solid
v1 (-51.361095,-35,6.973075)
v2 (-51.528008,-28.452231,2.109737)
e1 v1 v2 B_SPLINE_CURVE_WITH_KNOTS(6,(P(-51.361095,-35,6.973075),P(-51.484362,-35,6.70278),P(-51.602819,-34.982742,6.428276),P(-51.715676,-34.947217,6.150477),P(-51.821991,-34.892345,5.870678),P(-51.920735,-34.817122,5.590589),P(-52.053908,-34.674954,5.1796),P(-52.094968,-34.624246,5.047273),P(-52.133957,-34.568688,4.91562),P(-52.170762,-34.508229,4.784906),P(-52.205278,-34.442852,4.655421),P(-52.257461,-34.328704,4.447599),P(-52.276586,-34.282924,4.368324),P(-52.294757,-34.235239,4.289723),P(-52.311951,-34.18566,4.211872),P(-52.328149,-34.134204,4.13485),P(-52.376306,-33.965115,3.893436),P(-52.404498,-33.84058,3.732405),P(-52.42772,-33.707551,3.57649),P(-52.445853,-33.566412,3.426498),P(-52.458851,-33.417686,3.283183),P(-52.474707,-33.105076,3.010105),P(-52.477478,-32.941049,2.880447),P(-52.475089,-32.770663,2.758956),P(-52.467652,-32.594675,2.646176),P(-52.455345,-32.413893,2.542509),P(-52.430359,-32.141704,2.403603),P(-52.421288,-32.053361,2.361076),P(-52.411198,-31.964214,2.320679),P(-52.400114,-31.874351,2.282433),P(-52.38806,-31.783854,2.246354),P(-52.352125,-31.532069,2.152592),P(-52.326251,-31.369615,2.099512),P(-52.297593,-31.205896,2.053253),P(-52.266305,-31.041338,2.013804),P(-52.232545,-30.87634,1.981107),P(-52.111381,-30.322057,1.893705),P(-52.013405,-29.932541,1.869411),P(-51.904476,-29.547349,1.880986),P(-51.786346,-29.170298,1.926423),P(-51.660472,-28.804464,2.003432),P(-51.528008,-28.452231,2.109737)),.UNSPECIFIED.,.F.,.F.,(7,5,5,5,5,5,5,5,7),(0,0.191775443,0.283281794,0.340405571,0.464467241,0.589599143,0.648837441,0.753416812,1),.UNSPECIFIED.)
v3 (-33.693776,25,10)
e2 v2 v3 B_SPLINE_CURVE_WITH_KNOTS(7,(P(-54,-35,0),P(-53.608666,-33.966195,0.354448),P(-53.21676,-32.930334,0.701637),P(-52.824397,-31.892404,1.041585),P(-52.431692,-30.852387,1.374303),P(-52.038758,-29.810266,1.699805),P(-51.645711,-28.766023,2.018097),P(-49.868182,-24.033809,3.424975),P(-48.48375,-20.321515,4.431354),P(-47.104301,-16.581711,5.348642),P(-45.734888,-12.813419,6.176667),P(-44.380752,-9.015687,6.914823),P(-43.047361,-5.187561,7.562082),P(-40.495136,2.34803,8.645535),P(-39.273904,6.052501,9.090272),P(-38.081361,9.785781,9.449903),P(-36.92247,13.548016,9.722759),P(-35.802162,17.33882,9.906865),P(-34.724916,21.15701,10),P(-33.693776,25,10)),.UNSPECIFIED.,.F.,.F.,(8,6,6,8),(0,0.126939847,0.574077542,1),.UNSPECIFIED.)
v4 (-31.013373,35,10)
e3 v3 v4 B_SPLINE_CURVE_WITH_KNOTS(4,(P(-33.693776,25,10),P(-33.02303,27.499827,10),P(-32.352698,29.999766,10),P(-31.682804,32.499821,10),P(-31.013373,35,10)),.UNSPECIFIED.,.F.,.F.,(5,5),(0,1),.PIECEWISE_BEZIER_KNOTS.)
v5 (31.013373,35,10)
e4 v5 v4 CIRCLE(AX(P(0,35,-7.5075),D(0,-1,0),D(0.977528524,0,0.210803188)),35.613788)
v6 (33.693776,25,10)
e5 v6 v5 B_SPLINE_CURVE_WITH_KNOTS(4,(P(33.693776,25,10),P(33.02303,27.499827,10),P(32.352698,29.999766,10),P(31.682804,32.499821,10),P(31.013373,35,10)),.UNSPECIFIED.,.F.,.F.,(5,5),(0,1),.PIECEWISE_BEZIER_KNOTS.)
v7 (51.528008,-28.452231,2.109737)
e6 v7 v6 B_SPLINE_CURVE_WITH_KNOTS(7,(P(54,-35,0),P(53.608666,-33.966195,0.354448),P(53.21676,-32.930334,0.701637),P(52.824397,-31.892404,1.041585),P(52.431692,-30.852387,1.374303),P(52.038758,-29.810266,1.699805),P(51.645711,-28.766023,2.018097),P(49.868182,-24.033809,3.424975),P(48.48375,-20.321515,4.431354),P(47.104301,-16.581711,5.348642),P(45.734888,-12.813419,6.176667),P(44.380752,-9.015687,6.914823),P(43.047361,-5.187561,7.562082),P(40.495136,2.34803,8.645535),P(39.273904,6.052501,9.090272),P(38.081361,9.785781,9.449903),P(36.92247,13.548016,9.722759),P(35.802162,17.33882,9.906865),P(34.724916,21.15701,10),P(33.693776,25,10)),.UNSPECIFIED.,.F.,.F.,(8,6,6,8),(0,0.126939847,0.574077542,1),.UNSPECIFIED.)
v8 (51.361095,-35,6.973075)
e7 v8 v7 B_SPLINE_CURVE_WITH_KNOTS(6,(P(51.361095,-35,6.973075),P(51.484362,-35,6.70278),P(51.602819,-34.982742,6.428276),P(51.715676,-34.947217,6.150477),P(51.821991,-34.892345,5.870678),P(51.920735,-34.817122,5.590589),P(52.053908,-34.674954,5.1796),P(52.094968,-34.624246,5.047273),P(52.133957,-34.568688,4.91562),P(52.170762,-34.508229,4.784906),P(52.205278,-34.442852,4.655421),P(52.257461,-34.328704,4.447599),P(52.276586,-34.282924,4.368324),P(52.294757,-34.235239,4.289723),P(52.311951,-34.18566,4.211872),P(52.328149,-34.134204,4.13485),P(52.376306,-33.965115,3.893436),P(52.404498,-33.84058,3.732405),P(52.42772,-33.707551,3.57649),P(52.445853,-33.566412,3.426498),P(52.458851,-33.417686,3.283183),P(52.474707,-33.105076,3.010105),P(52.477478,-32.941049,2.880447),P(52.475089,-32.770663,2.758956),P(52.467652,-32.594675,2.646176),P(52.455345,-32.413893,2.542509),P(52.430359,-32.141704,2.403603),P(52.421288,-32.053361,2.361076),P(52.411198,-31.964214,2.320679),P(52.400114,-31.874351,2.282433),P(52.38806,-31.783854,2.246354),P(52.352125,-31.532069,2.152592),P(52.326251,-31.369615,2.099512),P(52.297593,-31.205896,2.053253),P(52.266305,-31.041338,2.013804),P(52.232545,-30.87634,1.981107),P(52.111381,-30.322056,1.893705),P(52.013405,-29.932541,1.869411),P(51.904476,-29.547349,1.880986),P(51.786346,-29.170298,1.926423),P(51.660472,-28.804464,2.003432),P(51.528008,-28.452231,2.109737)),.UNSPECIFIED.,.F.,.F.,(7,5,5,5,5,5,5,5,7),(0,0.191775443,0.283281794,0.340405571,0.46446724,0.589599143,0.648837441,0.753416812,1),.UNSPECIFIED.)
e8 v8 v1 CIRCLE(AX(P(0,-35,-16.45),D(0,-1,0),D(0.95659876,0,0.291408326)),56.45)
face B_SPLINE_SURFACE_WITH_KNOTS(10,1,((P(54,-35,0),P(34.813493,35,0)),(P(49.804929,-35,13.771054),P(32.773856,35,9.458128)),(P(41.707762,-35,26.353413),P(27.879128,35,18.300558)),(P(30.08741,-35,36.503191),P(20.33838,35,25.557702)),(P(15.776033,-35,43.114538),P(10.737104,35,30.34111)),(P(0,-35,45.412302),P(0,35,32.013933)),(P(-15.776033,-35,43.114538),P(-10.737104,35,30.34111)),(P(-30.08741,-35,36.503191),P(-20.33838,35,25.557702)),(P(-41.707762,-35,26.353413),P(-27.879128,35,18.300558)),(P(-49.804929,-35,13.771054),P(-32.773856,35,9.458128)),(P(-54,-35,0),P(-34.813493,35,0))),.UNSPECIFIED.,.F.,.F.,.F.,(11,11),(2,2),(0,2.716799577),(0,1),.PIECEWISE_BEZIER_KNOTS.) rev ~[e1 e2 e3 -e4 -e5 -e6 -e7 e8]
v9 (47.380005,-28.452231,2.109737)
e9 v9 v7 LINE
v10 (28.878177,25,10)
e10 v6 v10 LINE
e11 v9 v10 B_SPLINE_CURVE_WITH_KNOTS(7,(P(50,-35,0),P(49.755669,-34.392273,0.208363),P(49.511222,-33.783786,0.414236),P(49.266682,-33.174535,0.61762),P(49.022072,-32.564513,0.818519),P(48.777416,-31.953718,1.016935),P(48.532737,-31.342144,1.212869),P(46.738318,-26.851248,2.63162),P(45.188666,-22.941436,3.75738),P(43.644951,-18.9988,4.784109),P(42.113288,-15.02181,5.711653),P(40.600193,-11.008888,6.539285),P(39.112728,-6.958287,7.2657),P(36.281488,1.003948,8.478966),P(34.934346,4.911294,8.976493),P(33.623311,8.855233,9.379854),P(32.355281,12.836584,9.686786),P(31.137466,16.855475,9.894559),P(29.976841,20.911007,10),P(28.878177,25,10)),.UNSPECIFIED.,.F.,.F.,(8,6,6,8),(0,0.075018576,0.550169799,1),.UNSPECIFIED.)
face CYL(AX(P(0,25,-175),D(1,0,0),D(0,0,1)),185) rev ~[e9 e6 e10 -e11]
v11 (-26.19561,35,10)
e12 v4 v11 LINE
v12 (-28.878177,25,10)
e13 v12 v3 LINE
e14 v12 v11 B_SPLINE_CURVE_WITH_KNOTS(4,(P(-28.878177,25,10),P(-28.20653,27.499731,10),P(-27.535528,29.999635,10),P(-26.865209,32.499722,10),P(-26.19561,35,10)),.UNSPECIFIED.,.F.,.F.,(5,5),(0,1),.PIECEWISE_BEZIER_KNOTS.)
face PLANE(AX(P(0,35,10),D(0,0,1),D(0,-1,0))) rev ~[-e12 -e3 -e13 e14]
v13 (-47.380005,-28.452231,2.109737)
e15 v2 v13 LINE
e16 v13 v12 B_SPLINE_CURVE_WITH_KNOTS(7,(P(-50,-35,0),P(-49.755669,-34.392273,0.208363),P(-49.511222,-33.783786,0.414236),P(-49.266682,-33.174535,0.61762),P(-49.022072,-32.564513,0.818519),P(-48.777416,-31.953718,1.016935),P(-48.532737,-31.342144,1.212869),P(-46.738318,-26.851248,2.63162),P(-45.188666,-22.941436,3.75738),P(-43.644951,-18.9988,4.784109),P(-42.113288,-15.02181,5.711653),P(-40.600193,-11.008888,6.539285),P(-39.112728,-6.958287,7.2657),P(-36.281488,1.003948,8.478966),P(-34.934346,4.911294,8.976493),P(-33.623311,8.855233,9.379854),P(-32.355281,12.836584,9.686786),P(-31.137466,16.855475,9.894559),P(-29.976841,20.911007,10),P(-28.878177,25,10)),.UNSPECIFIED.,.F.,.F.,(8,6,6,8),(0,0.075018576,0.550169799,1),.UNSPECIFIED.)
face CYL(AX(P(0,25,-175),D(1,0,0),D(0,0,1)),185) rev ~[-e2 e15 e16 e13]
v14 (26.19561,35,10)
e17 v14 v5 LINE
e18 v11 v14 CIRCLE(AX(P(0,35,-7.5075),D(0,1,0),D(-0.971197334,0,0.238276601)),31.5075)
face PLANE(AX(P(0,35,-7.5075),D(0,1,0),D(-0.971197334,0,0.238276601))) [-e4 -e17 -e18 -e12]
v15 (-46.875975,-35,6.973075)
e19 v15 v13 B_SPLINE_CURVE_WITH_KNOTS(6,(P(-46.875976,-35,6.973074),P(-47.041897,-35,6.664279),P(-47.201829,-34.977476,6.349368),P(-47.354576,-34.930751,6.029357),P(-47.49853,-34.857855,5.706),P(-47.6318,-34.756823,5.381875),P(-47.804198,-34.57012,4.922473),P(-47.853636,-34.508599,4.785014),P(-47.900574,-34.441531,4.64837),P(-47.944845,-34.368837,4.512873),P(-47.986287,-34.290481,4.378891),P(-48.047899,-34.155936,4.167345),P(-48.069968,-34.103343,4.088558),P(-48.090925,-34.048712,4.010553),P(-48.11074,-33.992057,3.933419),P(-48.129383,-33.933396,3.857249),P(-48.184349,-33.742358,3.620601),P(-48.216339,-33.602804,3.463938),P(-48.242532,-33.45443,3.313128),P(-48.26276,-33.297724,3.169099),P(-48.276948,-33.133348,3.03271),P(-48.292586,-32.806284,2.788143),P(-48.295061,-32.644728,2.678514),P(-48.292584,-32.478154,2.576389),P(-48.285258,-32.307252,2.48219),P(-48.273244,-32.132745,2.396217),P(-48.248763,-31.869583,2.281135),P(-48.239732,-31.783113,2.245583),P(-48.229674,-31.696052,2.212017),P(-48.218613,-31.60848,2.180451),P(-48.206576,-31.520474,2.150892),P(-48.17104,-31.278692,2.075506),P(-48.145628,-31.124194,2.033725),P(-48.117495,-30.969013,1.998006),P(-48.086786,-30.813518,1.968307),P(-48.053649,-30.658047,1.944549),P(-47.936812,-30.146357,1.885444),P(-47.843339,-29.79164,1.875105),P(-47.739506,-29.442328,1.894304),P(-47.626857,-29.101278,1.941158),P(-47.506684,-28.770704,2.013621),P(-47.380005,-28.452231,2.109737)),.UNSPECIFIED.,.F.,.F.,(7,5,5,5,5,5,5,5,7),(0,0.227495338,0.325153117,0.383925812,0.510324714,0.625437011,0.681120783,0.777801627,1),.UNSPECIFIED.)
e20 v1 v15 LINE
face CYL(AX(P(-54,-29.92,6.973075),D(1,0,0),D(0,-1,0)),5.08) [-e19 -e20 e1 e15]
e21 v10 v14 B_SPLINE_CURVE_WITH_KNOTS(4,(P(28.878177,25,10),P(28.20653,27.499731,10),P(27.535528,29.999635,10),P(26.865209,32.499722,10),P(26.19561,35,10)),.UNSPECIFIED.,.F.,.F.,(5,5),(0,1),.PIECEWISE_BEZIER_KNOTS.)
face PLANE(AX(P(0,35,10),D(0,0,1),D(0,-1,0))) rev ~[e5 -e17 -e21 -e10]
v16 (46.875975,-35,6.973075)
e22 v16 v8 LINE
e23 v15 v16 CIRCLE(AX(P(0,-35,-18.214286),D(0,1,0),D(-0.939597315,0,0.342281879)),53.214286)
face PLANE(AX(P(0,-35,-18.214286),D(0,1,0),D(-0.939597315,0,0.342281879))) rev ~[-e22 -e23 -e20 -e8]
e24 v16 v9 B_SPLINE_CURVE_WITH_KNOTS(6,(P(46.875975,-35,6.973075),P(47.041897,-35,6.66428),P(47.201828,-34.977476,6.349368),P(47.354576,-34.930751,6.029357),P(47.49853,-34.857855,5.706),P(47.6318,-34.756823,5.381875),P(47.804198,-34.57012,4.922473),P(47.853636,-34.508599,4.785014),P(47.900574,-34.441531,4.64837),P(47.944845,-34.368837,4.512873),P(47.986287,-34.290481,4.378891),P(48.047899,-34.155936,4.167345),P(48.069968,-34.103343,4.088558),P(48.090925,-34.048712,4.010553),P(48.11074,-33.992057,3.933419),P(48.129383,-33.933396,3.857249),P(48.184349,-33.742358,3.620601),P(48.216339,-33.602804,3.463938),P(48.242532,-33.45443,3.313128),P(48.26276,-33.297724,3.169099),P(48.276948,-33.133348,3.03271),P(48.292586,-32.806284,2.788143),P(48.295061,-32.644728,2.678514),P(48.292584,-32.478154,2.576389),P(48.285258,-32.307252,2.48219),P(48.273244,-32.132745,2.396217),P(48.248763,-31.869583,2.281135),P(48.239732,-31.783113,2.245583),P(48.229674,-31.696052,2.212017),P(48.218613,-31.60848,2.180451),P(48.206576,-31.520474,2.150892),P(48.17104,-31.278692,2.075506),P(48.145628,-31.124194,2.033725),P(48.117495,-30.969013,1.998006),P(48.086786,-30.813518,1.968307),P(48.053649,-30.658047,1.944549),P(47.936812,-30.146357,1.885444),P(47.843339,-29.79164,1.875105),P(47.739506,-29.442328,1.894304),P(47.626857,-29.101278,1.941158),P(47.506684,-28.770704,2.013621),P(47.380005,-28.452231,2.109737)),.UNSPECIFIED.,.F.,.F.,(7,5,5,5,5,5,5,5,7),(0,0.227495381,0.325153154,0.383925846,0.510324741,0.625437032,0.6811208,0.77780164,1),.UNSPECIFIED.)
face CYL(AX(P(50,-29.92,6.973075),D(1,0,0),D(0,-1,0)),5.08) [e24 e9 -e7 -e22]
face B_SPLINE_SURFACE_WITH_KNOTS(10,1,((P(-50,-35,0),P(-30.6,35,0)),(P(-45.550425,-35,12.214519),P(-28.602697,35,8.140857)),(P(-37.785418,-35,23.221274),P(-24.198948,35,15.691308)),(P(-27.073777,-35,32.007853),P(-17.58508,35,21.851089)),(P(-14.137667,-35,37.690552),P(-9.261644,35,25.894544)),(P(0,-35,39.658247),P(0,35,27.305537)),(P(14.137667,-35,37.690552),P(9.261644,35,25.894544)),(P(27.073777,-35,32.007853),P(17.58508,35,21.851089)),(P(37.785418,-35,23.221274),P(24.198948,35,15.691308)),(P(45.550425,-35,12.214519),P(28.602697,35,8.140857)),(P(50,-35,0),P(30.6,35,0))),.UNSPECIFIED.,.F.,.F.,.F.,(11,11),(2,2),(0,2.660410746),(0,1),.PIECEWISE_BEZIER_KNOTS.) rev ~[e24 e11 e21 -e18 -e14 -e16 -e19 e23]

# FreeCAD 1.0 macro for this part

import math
import FreeCAD as App
import Part
import Sketcher


def edges_at(feature, points):
    """Names of the edges that pass closest to the given points."""
    edges = feature.Shape.Edges
    near = lambda p: min(range(len(edges)), key=lambda i: edges[i].distToShape(Part.Vertex(*p))[0])
    return sorted({f"Edge{near(p) + 1}" for p in points})

doc = App.newDocument("Part")
body = doc.addObject("PartDesign::Body", "Body")

# Sketch on XZ plane
sketch1 = body.newObject("Sketcher::SketchObject", "Sketch")
sketch1.AttachmentSupport = (doc.getObject("XZ_Plane"), [""])
sketch1.MapMode = "FlatFace"
sketch1.AttachmentOffset = App.Placement(App.Vector(0, 0, 35), App.Rotation())
sketch1.addGeometry([
    Part.LineSegment(App.Vector(-54, 0, 0), App.Vector(-50, 0, 0)),
    Part.ArcOfCircle(Part.Circle(App.Vector(0, -18.2, 0), App.Vector(0, 0, 1), 53.2), math.radians(20), math.radians(160)),
    Part.LineSegment(App.Vector(50, 0, 0), App.Vector(54, 0, 0)),
    Part.ArcOfCircle(Part.Circle(App.Vector(0, -16.4, 0), App.Vector(0, 0, 1), 56.5), math.radians(17), math.radians(163)),
], False)
sketch1.addConstraint([
    Sketcher.Constraint("Coincident", 0, 2, 1, 2),
    Sketcher.Constraint("Coincident", 1, 1, 2, 1),
    Sketcher.Constraint("Coincident", 2, 2, 3, 1),
    Sketcher.Constraint("Coincident", 3, 2, 0, 1),
    Sketcher.Constraint("Horizontal", 0),
    Sketcher.Constraint("Horizontal", 2),
    Sketcher.Constraint("Symmetric", 0, 2, 1, 1, -1, 1),
    Sketcher.Constraint("Symmetric", 2, 2, 3, 2, -2),
    Sketcher.Constraint("DistanceX", 0, 1, 0, 2, 4.0),
    Sketcher.Constraint("Radius", 3, 56.45),
    Sketcher.Constraint("DistanceX", 0, 2, -1, 1, 50.0),
    Sketcher.Constraint("Radius", 1, 53.214286),
])

# Sketch on XZ plane
sketch2 = body.newObject("Sketcher::SketchObject", "Sketch001")
sketch2.AttachmentSupport = (doc.getObject("XZ_Plane"), [""])
sketch2.MapMode = "FlatFace"
sketch2.AttachmentOffset = App.Placement(App.Vector(0, 0, -35), App.Rotation())
sketch2.addGeometry([
    Part.ArcOfCircle(Part.Circle(App.Vector(0, -7.5, 0), App.Vector(0, 0, 1), 31.5), math.radians(14), math.radians(166)),
    Part.LineSegment(App.Vector(30.6, 0, 0), App.Vector(34.8, 0, 0)),
    Part.ArcOfCircle(Part.Circle(App.Vector(0, -7.5, 0), App.Vector(0, 0, 1), 35.6), math.radians(12), math.radians(168)),
    Part.LineSegment(App.Vector(-34.8, 0, 0), App.Vector(-30.6, 0, 0)),
], False)
sketch2.addConstraint([
    Sketcher.Constraint("Coincident", 0, 1, 1, 1),
    Sketcher.Constraint("Coincident", 1, 2, 2, 1),
    Sketcher.Constraint("Coincident", 2, 2, 3, 1),
    Sketcher.Constraint("Coincident", 3, 2, 0, 2),
    Sketcher.Constraint("Horizontal", 1),
    Sketcher.Constraint("Horizontal", 3),
    Sketcher.Constraint("Coincident", 2, 3, 0, 3),
    Sketcher.Constraint("Symmetric", 1, 2, 2, 2, -1, 1),
    Sketcher.Constraint("PointOnObject", 0, 3, -2),
    Sketcher.Constraint("DistanceX", -1, 1, 0, 1, 30.6),
    Sketcher.Constraint("Radius", 0, 31.5075),
    Sketcher.Constraint("Radius", 2, 35.613788),
])

additiveloft = body.newObject("PartDesign::AdditiveLoft", "AdditiveLoft")
additiveloft.Profile = sketch1
additiveloft.Sections = [sketch2]

# Sketch on YZ plane
sketch3 = body.newObject("Sketcher::SketchObject", "Sketch002")
sketch3.AttachmentSupport = (doc.getObject("YZ_Plane"), [""])
sketch3.MapMode = "FlatFace"
sketch3.addGeometry([
    Part.LineSegment(App.Vector(-35, 0, 0), App.Vector(35, 0, 0)),
    Part.LineSegment(App.Vector(35, 0, 0), App.Vector(35, 10, 0)),
    Part.LineSegment(App.Vector(35, 10, 0), App.Vector(25, 10, 0)),
    Part.ArcOfCircle(Part.Circle(App.Vector(25, -175, 0), App.Vector(0, 0, 1), 185), math.radians(90), math.radians(108.92)),
], False)
sketch3.addConstraint([
    Sketcher.Constraint("Coincident", 0, 2, 1, 1),
    Sketcher.Constraint("Coincident", 1, 2, 2, 1),
    Sketcher.Constraint("Tangent", 2, 2, 3, 1),
    Sketcher.Constraint("Coincident", 3, 2, 0, 1),
    Sketcher.Constraint("Horizontal", 0),
    Sketcher.Constraint("Vertical", 1),
    Sketcher.Constraint("Horizontal", 2),
    Sketcher.Constraint("Symmetric", 0, 2, 3, 2, -1, 1),
    Sketcher.Constraint("Equal", 2, 1),
    Sketcher.Constraint("Radius", 3, 185.0),
    Sketcher.Constraint("DistanceX", 0, 1, 0, 2, 70.0),
])
pocket1 = body.newObject("PartDesign::Pocket", "Pocket")
pocket1.Profile = sketch3
pocket1.Length = 120
pocket1.Midplane = True
doc.recompute()

fillet = body.newObject("PartDesign::Fillet", "Fillet")
fillet.Base = (pocket1, edges_at(pocket1, [(52, -35, 0), (-52, -35, 0)]))
fillet.Radius = 5.08

doc.recompute()
